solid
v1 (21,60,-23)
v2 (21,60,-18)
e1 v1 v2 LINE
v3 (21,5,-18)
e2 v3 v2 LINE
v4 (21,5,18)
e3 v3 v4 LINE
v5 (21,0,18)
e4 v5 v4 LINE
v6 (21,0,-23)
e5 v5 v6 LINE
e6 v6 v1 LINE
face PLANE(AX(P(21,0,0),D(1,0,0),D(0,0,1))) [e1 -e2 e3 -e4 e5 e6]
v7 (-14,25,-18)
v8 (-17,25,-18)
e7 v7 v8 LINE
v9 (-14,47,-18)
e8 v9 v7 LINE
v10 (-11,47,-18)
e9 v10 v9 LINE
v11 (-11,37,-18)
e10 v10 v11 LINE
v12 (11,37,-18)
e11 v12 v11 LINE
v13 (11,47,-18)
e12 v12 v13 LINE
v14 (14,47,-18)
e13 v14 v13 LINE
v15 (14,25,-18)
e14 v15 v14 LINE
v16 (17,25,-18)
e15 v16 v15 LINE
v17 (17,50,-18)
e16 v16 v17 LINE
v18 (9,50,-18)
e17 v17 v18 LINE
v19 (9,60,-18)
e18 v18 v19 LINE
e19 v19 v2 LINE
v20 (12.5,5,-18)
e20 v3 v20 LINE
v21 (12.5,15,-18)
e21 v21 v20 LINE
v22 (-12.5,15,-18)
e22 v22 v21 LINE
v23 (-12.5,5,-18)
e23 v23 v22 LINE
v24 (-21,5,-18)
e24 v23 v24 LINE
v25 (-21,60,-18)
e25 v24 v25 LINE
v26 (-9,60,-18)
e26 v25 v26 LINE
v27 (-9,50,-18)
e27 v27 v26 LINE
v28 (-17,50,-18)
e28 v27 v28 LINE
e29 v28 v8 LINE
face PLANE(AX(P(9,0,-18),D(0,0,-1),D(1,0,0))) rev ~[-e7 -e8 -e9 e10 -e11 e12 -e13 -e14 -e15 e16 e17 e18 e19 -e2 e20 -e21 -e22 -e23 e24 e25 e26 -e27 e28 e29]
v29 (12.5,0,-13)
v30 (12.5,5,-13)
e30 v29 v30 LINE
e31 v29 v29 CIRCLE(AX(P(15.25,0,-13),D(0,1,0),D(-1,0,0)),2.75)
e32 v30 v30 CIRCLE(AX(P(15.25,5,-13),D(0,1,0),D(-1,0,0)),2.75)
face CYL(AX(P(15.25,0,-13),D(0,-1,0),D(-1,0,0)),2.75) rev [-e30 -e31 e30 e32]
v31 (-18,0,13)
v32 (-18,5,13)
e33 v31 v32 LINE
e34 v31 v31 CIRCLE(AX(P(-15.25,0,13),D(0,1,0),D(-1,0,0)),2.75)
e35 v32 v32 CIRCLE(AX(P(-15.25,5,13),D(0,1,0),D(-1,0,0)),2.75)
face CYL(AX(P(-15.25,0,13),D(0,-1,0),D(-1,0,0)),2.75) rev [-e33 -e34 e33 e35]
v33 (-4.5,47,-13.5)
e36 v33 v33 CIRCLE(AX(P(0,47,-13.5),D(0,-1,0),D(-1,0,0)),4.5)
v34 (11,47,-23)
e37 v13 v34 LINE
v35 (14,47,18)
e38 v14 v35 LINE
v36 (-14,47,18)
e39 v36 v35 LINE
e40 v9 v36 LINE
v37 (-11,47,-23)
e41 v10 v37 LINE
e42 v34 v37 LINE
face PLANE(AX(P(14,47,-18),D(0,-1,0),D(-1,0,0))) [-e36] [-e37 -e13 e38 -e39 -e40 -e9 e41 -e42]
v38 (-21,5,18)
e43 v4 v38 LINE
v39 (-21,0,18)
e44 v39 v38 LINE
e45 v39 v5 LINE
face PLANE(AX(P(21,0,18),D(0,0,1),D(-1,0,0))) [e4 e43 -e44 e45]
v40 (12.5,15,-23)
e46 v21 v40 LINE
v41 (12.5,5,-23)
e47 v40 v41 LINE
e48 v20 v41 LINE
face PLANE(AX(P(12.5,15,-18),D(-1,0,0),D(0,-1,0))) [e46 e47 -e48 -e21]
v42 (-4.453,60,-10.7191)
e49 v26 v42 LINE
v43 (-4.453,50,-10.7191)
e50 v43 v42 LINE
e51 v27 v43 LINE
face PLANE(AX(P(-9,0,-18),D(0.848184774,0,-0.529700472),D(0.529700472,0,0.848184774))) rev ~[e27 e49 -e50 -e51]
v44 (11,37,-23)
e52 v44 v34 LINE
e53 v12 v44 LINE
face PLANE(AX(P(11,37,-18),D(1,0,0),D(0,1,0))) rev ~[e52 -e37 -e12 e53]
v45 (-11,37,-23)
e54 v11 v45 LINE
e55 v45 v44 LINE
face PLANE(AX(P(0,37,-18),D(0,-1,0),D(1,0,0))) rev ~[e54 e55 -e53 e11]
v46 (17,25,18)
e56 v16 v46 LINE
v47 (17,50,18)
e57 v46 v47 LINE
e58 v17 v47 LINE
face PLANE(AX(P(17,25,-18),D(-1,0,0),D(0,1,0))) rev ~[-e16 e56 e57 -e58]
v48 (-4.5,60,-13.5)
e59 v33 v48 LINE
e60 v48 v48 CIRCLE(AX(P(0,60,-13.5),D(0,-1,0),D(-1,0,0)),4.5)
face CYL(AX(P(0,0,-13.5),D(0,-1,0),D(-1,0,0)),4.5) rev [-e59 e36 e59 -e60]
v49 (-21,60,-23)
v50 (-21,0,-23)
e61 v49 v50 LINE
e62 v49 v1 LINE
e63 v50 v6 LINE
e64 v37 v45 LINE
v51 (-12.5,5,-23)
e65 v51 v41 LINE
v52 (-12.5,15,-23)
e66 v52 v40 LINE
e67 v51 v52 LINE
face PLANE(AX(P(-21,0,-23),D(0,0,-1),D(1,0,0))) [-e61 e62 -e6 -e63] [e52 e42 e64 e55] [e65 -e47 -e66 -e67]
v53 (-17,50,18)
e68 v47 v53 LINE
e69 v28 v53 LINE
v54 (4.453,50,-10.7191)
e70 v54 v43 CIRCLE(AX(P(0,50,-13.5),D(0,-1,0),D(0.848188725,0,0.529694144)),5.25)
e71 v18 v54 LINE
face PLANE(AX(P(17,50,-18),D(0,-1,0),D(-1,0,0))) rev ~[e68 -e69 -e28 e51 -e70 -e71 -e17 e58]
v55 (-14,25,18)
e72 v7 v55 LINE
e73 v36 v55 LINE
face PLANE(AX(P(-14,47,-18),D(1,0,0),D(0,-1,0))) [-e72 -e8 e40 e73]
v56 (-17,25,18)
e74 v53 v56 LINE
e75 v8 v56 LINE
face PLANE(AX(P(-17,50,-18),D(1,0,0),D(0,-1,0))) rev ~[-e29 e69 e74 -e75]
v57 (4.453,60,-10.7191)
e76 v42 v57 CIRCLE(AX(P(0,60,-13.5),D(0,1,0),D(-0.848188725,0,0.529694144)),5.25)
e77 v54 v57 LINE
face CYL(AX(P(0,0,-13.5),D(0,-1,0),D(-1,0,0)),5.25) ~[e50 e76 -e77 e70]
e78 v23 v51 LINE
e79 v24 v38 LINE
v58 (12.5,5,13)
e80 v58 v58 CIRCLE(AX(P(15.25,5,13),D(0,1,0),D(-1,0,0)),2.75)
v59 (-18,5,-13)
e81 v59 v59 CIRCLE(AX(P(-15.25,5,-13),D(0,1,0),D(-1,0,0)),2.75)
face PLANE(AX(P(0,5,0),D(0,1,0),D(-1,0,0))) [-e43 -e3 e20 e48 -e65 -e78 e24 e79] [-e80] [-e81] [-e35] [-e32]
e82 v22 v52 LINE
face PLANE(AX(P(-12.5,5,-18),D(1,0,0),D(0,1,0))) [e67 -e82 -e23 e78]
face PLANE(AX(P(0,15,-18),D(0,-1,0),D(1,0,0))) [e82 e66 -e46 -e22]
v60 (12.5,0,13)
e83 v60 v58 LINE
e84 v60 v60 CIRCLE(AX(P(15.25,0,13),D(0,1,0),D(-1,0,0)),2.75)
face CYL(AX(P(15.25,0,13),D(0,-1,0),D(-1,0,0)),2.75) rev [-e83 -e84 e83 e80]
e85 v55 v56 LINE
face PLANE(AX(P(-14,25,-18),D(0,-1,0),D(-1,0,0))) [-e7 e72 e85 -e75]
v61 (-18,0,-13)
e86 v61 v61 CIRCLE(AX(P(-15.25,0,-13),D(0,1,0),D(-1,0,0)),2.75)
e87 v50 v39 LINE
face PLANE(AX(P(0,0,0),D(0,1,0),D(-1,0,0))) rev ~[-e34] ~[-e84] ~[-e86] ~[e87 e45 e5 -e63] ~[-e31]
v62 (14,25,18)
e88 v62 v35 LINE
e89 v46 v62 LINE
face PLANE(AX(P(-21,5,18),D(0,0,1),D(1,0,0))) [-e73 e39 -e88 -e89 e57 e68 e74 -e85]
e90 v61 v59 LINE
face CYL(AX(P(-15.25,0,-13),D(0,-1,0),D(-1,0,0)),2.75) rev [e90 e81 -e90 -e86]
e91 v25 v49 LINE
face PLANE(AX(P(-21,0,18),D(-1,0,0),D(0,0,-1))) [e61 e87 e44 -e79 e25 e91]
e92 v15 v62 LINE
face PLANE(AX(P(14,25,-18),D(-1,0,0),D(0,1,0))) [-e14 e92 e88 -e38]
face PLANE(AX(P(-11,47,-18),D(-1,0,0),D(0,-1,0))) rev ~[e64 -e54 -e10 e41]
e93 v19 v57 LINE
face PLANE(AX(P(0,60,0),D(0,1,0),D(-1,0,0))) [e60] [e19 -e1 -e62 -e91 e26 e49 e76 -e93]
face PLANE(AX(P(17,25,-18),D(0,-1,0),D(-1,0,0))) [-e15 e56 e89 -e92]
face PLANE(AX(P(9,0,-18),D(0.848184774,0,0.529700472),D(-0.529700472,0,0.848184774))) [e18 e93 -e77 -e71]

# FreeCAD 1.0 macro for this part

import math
import FreeCAD as App
import Part
import Sketcher
Q = App.Units.Quantity


def add_polygon(sketch, points):
    """Adds a closed chain of lines whose ends are joined by coincident constraints."""
    first, n = sketch.GeometryCount, len(points)
    for a, b in zip(points, points[1:] + points[:1]):
        sketch.addGeometry(Part.LineSegment(App.Vector(*a, 0), App.Vector(*b, 0)), False)
    for i in range(n):
        sketch.addConstraint(Sketcher.Constraint("Coincident", first + i, 2, first + (i + 1) % n, 1))

doc = App.newDocument("Part")
body = doc.addObject("PartDesign::Body", "Body")
body.AllowCompound = True

# Sketch on XZ plane
sketch1 = body.newObject("Sketcher::SketchObject", "Sketch")
sketch1.AttachmentSupport = (doc.getObject("XZ_Plane"), [""])
sketch1.MapMode = "FlatFace"
add_polygon(sketch1, [(21, 18), (21, -23), (-21, -23), (-21, 18)])  # lines 0-3
sketch1.addGeometry(Part.Circle(App.Vector(15.25, 13, 0), App.Vector(0, 0, 1), 2.75), False)  # 4
sketch1.addGeometry(Part.Circle(App.Vector(-15.25, 13, 0), App.Vector(0, 0, 1), 2.75), False)  # 5
sketch1.addGeometry(Part.Circle(App.Vector(15.25, -13, 0), App.Vector(0, 0, 1), 2.75), False)  # 6
sketch1.addGeometry(Part.Circle(App.Vector(-15.25, -13, 0), App.Vector(0, 0, 1), 2.75), False)  # 7
sketch1.addConstraint(Sketcher.Constraint("Vertical", 0))
sketch1.addConstraint(Sketcher.Constraint("Horizontal", 1))
sketch1.addConstraint(Sketcher.Constraint("Vertical", 2))
sketch1.addConstraint(Sketcher.Constraint("Horizontal", 3))
sketch1.addConstraint(Sketcher.Constraint("Equal", 4, 5))
sketch1.addConstraint(Sketcher.Constraint("Equal", 5, 6))
sketch1.addConstraint(Sketcher.Constraint("Equal", 6, 7))
sketch1.addConstraint(Sketcher.Constraint("Symmetric", 5, 3, 6, 3, -1, 1))
sketch1.addConstraint(Sketcher.Constraint("Symmetric", 4, 3, 7, 3, -1, 1))
sketch1.addConstraint(Sketcher.Constraint("Symmetric", 4, 3, 5, 3, -2))
sketch1.addConstraint(Sketcher.Constraint("Diameter", 4, Q("5.5 mm")))
sketch1.addConstraint(Sketcher.Constraint("DistanceX", 1, 2, 1, 1, Q("42 mm")))
sketch1.addConstraint(Sketcher.Constraint("DistanceY", 0, 2, 4, 3, Q("36 mm")))
sketch1.addConstraint(Sketcher.Constraint("DistanceY", 5, 3, 2, 2, Q("5 mm")))
sketch1.addConstraint(Sketcher.Constraint("DistanceX", 6, 3, 0, 2, Q("5.75 mm")))
sketch1.addConstraint(Sketcher.Constraint("DistanceX", 1, 2, 7, 3, Q("5.75 mm")))
sketch1.addConstraint(Sketcher.Constraint("DistanceY", -1, 1, 4, 3, Q("13 mm")))
pad1 = body.newObject("PartDesign::Pad", "Pad")
pad1.Profile = sketch1
pad1.Length = 5
pad1.Reversed = True

# Sketch on XZ plane
sketch2 = body.newObject("Sketcher::SketchObject", "Sketch001")
sketch2.AttachmentSupport = (doc.getObject("XZ_Plane"), [""])
sketch2.MapMode = "FlatFace"
sketch2.addGeometry(Part.LineSegment(App.Vector(9, -18, 0), App.Vector(21, -18, 0)), False)
sketch2.addGeometry(Part.LineSegment(App.Vector(21, -18, 0), App.Vector(21, -23, 0)), False)
sketch2.addGeometry(Part.LineSegment(App.Vector(21, -23, 0), App.Vector(-21, -23, 0)), False)
sketch2.addGeometry(Part.LineSegment(App.Vector(-21, -23, 0), App.Vector(-21, -18, 0)), False)
sketch2.addGeometry(Part.LineSegment(App.Vector(-21, -18, 0), App.Vector(-9, -18, 0)), False)
sketch2.addGeometry(Part.LineSegment(App.Vector(-9, -18, 0), App.Vector(-4.453, -10.7191, 0)), False)
sketch2.addGeometry(Part.ArcOfCircle(Part.Circle(App.Vector(0, -13.5, 0), App.Vector(0, 0, 1), 5.25), math.radians(31.984792), math.radians(148.015208)), False)
sketch2.addGeometry(Part.LineSegment(App.Vector(4.453, -10.7191, 0), App.Vector(9, -18, 0)), False)
sketch2.addGeometry(Part.Circle(App.Vector(0, -13.5, 0), App.Vector(0, 0, 1), 4.5), False)
sketch2.addConstraint(Sketcher.Constraint("Coincident", 0, 2, 1, 1))
sketch2.addConstraint(Sketcher.Constraint("Coincident", 1, 2, 2, 1))
sketch2.addConstraint(Sketcher.Constraint("Coincident", 2, 2, 3, 1))
sketch2.addConstraint(Sketcher.Constraint("Coincident", 3, 2, 4, 1))
sketch2.addConstraint(Sketcher.Constraint("Coincident", 4, 2, 5, 1))
sketch2.addConstraint(Sketcher.Constraint("Tangent", 5, 2, 6, 2))
sketch2.addConstraint(Sketcher.Constraint("Tangent", 6, 1, 7, 1))
sketch2.addConstraint(Sketcher.Constraint("Coincident", 7, 2, 0, 1))
sketch2.addConstraint(Sketcher.Constraint("Horizontal", 0))
sketch2.addConstraint(Sketcher.Constraint("Vertical", 1))
sketch2.addConstraint(Sketcher.Constraint("Horizontal", 2))
sketch2.addConstraint(Sketcher.Constraint("Vertical", 3))
sketch2.addConstraint(Sketcher.Constraint("Horizontal", 4))
sketch2.addConstraint(Sketcher.Constraint("Coincident", 8, 3, 6, 3))
sketch2.addConstraint(Sketcher.Constraint("Symmetric", 0, 2, 3, 2, -2))
sketch2.addConstraint(Sketcher.Constraint("Symmetric", 5, 2, 6, 1, -2))
sketch2.addConstraint(Sketcher.Constraint("Diameter", 8, Q("9 mm")))
sketch2.addConstraint(Sketcher.Constraint("DistanceX", 2, 2, 2, 1, Q("42 mm")))
sketch2.addConstraint(Sketcher.Constraint("DistanceY", 1, 2, 1, 1, Q("5 mm")))
sketch2.addConstraint(Sketcher.Constraint("Radius", 6, Q("5.25 mm")))
sketch2.addConstraint(Sketcher.Constraint("DistanceX", 4, 2, -1, 1, Q("9 mm")))
sketch2.addConstraint(Sketcher.Constraint("DistanceY", 0, 2, 6, 3, Q("4.5 mm")))
sketch2.addConstraint(Sketcher.Constraint("DistanceY", 0, 2, -1, 1, Q("18 mm")))
pad2 = body.newObject("PartDesign::Pad", "Pad001")
pad2.Profile = sketch2
pad2.Length = 60
pad2.Reversed = True

# Sketch on XZ plane
sketch3 = body.newObject("Sketcher::SketchObject", "Sketch002")
sketch3.AttachmentSupport = (doc.getObject("XZ_Plane"), [""])
sketch3.MapMode = "FlatFace"
sketch3.addGeometry(Part.LineSegment(App.Vector(0, -18, 0), App.Vector(-9, -18, 0)), False)
sketch3.addGeometry(Part.LineSegment(App.Vector(-9, -18, 0), App.Vector(-4.453, -10.7191, 0)), False)
sketch3.addGeometry(Part.ArcOfCircle(Part.Circle(App.Vector(0, -13.5, 0), App.Vector(0, 0, 1), 5.25), math.radians(31.984792), math.radians(148.015208)), False)
sketch3.addGeometry(Part.LineSegment(App.Vector(4.453, -10.7191, 0), App.Vector(9, -18, 0)), False)
sketch3.addGeometry(Part.LineSegment(App.Vector(9, -18, 0), App.Vector(0, -18, 0)), False)
sketch3.addGeometry(Part.Circle(App.Vector(0, -13.5, 0), App.Vector(0, 0, 1), 4.5), False)
sketch3.addConstraint(Sketcher.Constraint("Coincident", 0, 2, 1, 1))
sketch3.addConstraint(Sketcher.Constraint("Tangent", 1, 2, 2, 2))
sketch3.addConstraint(Sketcher.Constraint("Tangent", 2, 1, 3, 1))
sketch3.addConstraint(Sketcher.Constraint("Coincident", 3, 2, 4, 1))
sketch3.addConstraint(Sketcher.Constraint("Coincident", 4, 2, 0, 1))
sketch3.addConstraint(Sketcher.Constraint("Horizontal", 0))
sketch3.addConstraint(Sketcher.Constraint("Horizontal", 4))
sketch3.addConstraint(Sketcher.Constraint("Coincident", 5, 3, 2, 3))
sketch3.addConstraint(Sketcher.Constraint("Symmetric", 1, 2, 2, 1, -2))
sketch3.addConstraint(Sketcher.Constraint("PointOnObject", 4, 2, -2))
sketch3.addConstraint(Sketcher.Constraint("Diameter", 5, Q("9 mm")))
sketch3.addConstraint(Sketcher.Constraint("DistanceX", 0, 2, 0, 1, Q("9 mm")))
sketch3.addConstraint(Sketcher.Constraint("Radius", 2, Q("5.25 mm")))
sketch3.addConstraint(Sketcher.Constraint("DistanceY", 0, 2, 2, 3, Q("4.5 mm")))
sketch3.addConstraint(Sketcher.Constraint("DistanceY", 0, 2, -1, 1, Q("18 mm")))
pocket1 = body.newObject("PartDesign::Pocket", "Pocket")
pocket1.Profile = sketch3
pocket1.Length = 50

# Sketch on XZ plane
sketch4 = body.newObject("Sketcher::SketchObject", "Sketch003")
sketch4.AttachmentSupport = (doc.getObject("XZ_Plane"), [""])
sketch4.MapMode = "FlatFace"
sketch4.addGeometry(Part.LineSegment(App.Vector(0, -18, 0), App.Vector(-9, -18, 0)), False)
sketch4.addGeometry(Part.LineSegment(App.Vector(-9, -18, 0), App.Vector(-4.453, -10.7191, 0)), False)
sketch4.addGeometry(Part.ArcOfCircle(Part.Circle(App.Vector(0, -13.5, 0), App.Vector(0, 0, 1), 5.25), math.radians(31.984792), math.radians(148.015208)), False)
sketch4.addGeometry(Part.LineSegment(App.Vector(4.453, -10.7191, 0), App.Vector(9, -18, 0)), False)
sketch4.addGeometry(Part.LineSegment(App.Vector(9, -18, 0), App.Vector(0, -18, 0)), False)
sketch4.addGeometry(Part.Circle(App.Vector(0, -13.5, 0), App.Vector(0, 0, 1), 4.5), False)
sketch4.addConstraint(Sketcher.Constraint("Coincident", 0, 2, 1, 1))
sketch4.addConstraint(Sketcher.Constraint("Tangent", 1, 2, 2, 2))
sketch4.addConstraint(Sketcher.Constraint("Tangent", 2, 1, 3, 1))
sketch4.addConstraint(Sketcher.Constraint("Coincident", 3, 2, 4, 1))
sketch4.addConstraint(Sketcher.Constraint("Coincident", 4, 2, 0, 1))
sketch4.addConstraint(Sketcher.Constraint("Horizontal", 0))
sketch4.addConstraint(Sketcher.Constraint("Horizontal", 4))
sketch4.addConstraint(Sketcher.Constraint("Coincident", 5, 3, 2, 3))
sketch4.addConstraint(Sketcher.Constraint("Symmetric", 1, 2, 2, 1, -2))
sketch4.addConstraint(Sketcher.Constraint("PointOnObject", 4, 2, -2))
sketch4.addConstraint(Sketcher.Constraint("Diameter", 5, Q("9 mm")))
sketch4.addConstraint(Sketcher.Constraint("DistanceX", 0, 2, 0, 1, Q("9 mm")))
sketch4.addConstraint(Sketcher.Constraint("Radius", 2, Q("5.25 mm")))
sketch4.addConstraint(Sketcher.Constraint("DistanceY", 0, 2, 2, 3, Q("4.5 mm")))
sketch4.addConstraint(Sketcher.Constraint("DistanceY", 0, 2, -1, 1, Q("18 mm")))
pad3 = body.newObject("PartDesign::Pad", "Pad002")
pad3.Profile = sketch4
pad3.Length = 5
pad3.Reversed = True

# Sketch on XY plane
sketch5 = body.newObject("Sketcher::SketchObject", "Sketch004")
sketch5.AttachmentSupport = (doc.getObject("XY_Plane"), [""])
sketch5.MapMode = "FlatFace"
sketch5.AttachmentOffset = App.Placement(App.Vector(0, 0, -18), App.Rotation())
add_polygon(sketch5, [(14, 25), (17, 25), (17, 50), (-17, 50), (-17, 25), (-14, 25), (-14, 47), (14, 47)])  # lines 0-7
sketch5.addConstraint(Sketcher.Constraint("Horizontal", 0))
sketch5.addConstraint(Sketcher.Constraint("Vertical", 1))
sketch5.addConstraint(Sketcher.Constraint("Horizontal", 2))
sketch5.addConstraint(Sketcher.Constraint("Vertical", 3))
sketch5.addConstraint(Sketcher.Constraint("Horizontal", 4))
sketch5.addConstraint(Sketcher.Constraint("Vertical", 5))
sketch5.addConstraint(Sketcher.Constraint("Horizontal", 6))
sketch5.addConstraint(Sketcher.Constraint("Vertical", 7))
sketch5.addConstraint(Sketcher.Constraint("Symmetric", 0, 2, 3, 2, -2))
sketch5.addConstraint(Sketcher.Constraint("Equal", 0, 4))
sketch5.addConstraint(Sketcher.Constraint("DistanceX", 0, 1, 0, 2, Q("3 mm")))
sketch5.addConstraint(Sketcher.Constraint("DistanceX", 6, 1, 6, 2, Q("28 mm")))
sketch5.addConstraint(Sketcher.Constraint("DistanceY", 1, 1, 1, 2, Q("25 mm")))
sketch5.addConstraint(Sketcher.Constraint("DistanceY", 5, 1, 5, 2, Q("22 mm")))
sketch5.addConstraint(Sketcher.Constraint("DistanceY", -1, 1, 0, 2, Q("25 mm")))
pad4 = body.newObject("PartDesign::Pad", "Pad003")
pad4.Profile = sketch5
pad4.Length = 36

# Sketch on XY plane
sketch6 = body.newObject("Sketcher::SketchObject", "Sketch005")
sketch6.AttachmentSupport = (doc.getObject("XY_Plane"), [""])
sketch6.MapMode = "FlatFace"
sketch6.AttachmentOffset = App.Placement(App.Vector(0, 0, -18), App.Rotation())
add_polygon(sketch6, [(12.5, 5), (12.5, 15), (-12.5, 15), (-12.5, 5)])  # lines 0-3
add_polygon(sketch6, [(11, 37), (11, 47), (-11, 47), (-11, 37)])  # lines 4-7
sketch6.addConstraint(Sketcher.Constraint("Vertical", 0))
sketch6.addConstraint(Sketcher.Constraint("Horizontal", 1))
sketch6.addConstraint(Sketcher.Constraint("Vertical", 2))
sketch6.addConstraint(Sketcher.Constraint("Horizontal", 3))
sketch6.addConstraint(Sketcher.Constraint("Vertical", 4))
sketch6.addConstraint(Sketcher.Constraint("Horizontal", 5))
sketch6.addConstraint(Sketcher.Constraint("Vertical", 6))
sketch6.addConstraint(Sketcher.Constraint("Horizontal", 7))
sketch6.addConstraint(Sketcher.Constraint("Equal", 2, 4))
sketch6.addConstraint(Sketcher.Constraint("DistanceX", 1, 2, 1, 1, Q("25 mm")))
sketch6.addConstraint(Sketcher.Constraint("DistanceX", 5, 2, 5, 1, Q("22 mm")))
sketch6.addConstraint(Sketcher.Constraint("DistanceY", 0, 1, 0, 2, Q("10 mm")))
sketch6.addConstraint(Sketcher.Constraint("DistanceY", 3, 2, 4, 2, Q("42 mm")))
sketch6.addConstraint(Sketcher.Constraint("DistanceY", -1, 1, 0, 2, Q("15 mm")))
sketch6.addConstraint(Sketcher.Constraint("DistanceX", -1, 1, 4, 2, Q("11 mm")))
sketch6.addConstraint(Sketcher.Constraint("DistanceX", -1, 1, 0, 2, Q("12.5 mm")))
pocket2 = body.newObject("PartDesign::Pocket", "Pocket001")
pocket2.Profile = sketch6
pocket2.Length = 5

# Sketch on XZ plane
sketch7 = body.newObject("Sketcher::SketchObject", "Sketch006")
sketch7.AttachmentSupport = (doc.getObject("XZ_Plane"), [""])
sketch7.MapMode = "FlatFace"
sketch7.addGeometry(Part.Circle(App.Vector(0, -13.5, 0), App.Vector(0, 0, 1), 4.5), False)
sketch7.addConstraint(Sketcher.Constraint("PointOnObject", 0, 3, -2))
sketch7.addConstraint(Sketcher.Constraint("Diameter", 0, Q("9 mm")))
sketch7.addConstraint(Sketcher.Constraint("DistanceY", 0, 3, -1, 1, Q("13.5 mm")))
pocket3 = body.newObject("PartDesign::Pocket", "Pocket002")
pocket3.Profile = sketch7
pocket3.Length = 50

# Sketch on XZ plane
sketch8 = body.newObject("Sketcher::SketchObject", "Sketch007")
sketch8.AttachmentSupport = (doc.getObject("XZ_Plane"), [""])
sketch8.MapMode = "FlatFace"
sketch8.addGeometry(Part.Circle(App.Vector(0, -13.5, 0), App.Vector(0, 0, 1), 4.5), False)
sketch8.addConstraint(Sketcher.Constraint("PointOnObject", 0, 3, -2))
sketch8.addConstraint(Sketcher.Constraint("Diameter", 0, Q("9 mm")))
sketch8.addConstraint(Sketcher.Constraint("DistanceY", 0, 3, -1, 1, Q("13.5 mm")))
pad5 = body.newObject("PartDesign::Pad", "Pad004")
pad5.Profile = sketch8
pad5.Length = 5
pad5.Reversed = True

doc.recompute()
